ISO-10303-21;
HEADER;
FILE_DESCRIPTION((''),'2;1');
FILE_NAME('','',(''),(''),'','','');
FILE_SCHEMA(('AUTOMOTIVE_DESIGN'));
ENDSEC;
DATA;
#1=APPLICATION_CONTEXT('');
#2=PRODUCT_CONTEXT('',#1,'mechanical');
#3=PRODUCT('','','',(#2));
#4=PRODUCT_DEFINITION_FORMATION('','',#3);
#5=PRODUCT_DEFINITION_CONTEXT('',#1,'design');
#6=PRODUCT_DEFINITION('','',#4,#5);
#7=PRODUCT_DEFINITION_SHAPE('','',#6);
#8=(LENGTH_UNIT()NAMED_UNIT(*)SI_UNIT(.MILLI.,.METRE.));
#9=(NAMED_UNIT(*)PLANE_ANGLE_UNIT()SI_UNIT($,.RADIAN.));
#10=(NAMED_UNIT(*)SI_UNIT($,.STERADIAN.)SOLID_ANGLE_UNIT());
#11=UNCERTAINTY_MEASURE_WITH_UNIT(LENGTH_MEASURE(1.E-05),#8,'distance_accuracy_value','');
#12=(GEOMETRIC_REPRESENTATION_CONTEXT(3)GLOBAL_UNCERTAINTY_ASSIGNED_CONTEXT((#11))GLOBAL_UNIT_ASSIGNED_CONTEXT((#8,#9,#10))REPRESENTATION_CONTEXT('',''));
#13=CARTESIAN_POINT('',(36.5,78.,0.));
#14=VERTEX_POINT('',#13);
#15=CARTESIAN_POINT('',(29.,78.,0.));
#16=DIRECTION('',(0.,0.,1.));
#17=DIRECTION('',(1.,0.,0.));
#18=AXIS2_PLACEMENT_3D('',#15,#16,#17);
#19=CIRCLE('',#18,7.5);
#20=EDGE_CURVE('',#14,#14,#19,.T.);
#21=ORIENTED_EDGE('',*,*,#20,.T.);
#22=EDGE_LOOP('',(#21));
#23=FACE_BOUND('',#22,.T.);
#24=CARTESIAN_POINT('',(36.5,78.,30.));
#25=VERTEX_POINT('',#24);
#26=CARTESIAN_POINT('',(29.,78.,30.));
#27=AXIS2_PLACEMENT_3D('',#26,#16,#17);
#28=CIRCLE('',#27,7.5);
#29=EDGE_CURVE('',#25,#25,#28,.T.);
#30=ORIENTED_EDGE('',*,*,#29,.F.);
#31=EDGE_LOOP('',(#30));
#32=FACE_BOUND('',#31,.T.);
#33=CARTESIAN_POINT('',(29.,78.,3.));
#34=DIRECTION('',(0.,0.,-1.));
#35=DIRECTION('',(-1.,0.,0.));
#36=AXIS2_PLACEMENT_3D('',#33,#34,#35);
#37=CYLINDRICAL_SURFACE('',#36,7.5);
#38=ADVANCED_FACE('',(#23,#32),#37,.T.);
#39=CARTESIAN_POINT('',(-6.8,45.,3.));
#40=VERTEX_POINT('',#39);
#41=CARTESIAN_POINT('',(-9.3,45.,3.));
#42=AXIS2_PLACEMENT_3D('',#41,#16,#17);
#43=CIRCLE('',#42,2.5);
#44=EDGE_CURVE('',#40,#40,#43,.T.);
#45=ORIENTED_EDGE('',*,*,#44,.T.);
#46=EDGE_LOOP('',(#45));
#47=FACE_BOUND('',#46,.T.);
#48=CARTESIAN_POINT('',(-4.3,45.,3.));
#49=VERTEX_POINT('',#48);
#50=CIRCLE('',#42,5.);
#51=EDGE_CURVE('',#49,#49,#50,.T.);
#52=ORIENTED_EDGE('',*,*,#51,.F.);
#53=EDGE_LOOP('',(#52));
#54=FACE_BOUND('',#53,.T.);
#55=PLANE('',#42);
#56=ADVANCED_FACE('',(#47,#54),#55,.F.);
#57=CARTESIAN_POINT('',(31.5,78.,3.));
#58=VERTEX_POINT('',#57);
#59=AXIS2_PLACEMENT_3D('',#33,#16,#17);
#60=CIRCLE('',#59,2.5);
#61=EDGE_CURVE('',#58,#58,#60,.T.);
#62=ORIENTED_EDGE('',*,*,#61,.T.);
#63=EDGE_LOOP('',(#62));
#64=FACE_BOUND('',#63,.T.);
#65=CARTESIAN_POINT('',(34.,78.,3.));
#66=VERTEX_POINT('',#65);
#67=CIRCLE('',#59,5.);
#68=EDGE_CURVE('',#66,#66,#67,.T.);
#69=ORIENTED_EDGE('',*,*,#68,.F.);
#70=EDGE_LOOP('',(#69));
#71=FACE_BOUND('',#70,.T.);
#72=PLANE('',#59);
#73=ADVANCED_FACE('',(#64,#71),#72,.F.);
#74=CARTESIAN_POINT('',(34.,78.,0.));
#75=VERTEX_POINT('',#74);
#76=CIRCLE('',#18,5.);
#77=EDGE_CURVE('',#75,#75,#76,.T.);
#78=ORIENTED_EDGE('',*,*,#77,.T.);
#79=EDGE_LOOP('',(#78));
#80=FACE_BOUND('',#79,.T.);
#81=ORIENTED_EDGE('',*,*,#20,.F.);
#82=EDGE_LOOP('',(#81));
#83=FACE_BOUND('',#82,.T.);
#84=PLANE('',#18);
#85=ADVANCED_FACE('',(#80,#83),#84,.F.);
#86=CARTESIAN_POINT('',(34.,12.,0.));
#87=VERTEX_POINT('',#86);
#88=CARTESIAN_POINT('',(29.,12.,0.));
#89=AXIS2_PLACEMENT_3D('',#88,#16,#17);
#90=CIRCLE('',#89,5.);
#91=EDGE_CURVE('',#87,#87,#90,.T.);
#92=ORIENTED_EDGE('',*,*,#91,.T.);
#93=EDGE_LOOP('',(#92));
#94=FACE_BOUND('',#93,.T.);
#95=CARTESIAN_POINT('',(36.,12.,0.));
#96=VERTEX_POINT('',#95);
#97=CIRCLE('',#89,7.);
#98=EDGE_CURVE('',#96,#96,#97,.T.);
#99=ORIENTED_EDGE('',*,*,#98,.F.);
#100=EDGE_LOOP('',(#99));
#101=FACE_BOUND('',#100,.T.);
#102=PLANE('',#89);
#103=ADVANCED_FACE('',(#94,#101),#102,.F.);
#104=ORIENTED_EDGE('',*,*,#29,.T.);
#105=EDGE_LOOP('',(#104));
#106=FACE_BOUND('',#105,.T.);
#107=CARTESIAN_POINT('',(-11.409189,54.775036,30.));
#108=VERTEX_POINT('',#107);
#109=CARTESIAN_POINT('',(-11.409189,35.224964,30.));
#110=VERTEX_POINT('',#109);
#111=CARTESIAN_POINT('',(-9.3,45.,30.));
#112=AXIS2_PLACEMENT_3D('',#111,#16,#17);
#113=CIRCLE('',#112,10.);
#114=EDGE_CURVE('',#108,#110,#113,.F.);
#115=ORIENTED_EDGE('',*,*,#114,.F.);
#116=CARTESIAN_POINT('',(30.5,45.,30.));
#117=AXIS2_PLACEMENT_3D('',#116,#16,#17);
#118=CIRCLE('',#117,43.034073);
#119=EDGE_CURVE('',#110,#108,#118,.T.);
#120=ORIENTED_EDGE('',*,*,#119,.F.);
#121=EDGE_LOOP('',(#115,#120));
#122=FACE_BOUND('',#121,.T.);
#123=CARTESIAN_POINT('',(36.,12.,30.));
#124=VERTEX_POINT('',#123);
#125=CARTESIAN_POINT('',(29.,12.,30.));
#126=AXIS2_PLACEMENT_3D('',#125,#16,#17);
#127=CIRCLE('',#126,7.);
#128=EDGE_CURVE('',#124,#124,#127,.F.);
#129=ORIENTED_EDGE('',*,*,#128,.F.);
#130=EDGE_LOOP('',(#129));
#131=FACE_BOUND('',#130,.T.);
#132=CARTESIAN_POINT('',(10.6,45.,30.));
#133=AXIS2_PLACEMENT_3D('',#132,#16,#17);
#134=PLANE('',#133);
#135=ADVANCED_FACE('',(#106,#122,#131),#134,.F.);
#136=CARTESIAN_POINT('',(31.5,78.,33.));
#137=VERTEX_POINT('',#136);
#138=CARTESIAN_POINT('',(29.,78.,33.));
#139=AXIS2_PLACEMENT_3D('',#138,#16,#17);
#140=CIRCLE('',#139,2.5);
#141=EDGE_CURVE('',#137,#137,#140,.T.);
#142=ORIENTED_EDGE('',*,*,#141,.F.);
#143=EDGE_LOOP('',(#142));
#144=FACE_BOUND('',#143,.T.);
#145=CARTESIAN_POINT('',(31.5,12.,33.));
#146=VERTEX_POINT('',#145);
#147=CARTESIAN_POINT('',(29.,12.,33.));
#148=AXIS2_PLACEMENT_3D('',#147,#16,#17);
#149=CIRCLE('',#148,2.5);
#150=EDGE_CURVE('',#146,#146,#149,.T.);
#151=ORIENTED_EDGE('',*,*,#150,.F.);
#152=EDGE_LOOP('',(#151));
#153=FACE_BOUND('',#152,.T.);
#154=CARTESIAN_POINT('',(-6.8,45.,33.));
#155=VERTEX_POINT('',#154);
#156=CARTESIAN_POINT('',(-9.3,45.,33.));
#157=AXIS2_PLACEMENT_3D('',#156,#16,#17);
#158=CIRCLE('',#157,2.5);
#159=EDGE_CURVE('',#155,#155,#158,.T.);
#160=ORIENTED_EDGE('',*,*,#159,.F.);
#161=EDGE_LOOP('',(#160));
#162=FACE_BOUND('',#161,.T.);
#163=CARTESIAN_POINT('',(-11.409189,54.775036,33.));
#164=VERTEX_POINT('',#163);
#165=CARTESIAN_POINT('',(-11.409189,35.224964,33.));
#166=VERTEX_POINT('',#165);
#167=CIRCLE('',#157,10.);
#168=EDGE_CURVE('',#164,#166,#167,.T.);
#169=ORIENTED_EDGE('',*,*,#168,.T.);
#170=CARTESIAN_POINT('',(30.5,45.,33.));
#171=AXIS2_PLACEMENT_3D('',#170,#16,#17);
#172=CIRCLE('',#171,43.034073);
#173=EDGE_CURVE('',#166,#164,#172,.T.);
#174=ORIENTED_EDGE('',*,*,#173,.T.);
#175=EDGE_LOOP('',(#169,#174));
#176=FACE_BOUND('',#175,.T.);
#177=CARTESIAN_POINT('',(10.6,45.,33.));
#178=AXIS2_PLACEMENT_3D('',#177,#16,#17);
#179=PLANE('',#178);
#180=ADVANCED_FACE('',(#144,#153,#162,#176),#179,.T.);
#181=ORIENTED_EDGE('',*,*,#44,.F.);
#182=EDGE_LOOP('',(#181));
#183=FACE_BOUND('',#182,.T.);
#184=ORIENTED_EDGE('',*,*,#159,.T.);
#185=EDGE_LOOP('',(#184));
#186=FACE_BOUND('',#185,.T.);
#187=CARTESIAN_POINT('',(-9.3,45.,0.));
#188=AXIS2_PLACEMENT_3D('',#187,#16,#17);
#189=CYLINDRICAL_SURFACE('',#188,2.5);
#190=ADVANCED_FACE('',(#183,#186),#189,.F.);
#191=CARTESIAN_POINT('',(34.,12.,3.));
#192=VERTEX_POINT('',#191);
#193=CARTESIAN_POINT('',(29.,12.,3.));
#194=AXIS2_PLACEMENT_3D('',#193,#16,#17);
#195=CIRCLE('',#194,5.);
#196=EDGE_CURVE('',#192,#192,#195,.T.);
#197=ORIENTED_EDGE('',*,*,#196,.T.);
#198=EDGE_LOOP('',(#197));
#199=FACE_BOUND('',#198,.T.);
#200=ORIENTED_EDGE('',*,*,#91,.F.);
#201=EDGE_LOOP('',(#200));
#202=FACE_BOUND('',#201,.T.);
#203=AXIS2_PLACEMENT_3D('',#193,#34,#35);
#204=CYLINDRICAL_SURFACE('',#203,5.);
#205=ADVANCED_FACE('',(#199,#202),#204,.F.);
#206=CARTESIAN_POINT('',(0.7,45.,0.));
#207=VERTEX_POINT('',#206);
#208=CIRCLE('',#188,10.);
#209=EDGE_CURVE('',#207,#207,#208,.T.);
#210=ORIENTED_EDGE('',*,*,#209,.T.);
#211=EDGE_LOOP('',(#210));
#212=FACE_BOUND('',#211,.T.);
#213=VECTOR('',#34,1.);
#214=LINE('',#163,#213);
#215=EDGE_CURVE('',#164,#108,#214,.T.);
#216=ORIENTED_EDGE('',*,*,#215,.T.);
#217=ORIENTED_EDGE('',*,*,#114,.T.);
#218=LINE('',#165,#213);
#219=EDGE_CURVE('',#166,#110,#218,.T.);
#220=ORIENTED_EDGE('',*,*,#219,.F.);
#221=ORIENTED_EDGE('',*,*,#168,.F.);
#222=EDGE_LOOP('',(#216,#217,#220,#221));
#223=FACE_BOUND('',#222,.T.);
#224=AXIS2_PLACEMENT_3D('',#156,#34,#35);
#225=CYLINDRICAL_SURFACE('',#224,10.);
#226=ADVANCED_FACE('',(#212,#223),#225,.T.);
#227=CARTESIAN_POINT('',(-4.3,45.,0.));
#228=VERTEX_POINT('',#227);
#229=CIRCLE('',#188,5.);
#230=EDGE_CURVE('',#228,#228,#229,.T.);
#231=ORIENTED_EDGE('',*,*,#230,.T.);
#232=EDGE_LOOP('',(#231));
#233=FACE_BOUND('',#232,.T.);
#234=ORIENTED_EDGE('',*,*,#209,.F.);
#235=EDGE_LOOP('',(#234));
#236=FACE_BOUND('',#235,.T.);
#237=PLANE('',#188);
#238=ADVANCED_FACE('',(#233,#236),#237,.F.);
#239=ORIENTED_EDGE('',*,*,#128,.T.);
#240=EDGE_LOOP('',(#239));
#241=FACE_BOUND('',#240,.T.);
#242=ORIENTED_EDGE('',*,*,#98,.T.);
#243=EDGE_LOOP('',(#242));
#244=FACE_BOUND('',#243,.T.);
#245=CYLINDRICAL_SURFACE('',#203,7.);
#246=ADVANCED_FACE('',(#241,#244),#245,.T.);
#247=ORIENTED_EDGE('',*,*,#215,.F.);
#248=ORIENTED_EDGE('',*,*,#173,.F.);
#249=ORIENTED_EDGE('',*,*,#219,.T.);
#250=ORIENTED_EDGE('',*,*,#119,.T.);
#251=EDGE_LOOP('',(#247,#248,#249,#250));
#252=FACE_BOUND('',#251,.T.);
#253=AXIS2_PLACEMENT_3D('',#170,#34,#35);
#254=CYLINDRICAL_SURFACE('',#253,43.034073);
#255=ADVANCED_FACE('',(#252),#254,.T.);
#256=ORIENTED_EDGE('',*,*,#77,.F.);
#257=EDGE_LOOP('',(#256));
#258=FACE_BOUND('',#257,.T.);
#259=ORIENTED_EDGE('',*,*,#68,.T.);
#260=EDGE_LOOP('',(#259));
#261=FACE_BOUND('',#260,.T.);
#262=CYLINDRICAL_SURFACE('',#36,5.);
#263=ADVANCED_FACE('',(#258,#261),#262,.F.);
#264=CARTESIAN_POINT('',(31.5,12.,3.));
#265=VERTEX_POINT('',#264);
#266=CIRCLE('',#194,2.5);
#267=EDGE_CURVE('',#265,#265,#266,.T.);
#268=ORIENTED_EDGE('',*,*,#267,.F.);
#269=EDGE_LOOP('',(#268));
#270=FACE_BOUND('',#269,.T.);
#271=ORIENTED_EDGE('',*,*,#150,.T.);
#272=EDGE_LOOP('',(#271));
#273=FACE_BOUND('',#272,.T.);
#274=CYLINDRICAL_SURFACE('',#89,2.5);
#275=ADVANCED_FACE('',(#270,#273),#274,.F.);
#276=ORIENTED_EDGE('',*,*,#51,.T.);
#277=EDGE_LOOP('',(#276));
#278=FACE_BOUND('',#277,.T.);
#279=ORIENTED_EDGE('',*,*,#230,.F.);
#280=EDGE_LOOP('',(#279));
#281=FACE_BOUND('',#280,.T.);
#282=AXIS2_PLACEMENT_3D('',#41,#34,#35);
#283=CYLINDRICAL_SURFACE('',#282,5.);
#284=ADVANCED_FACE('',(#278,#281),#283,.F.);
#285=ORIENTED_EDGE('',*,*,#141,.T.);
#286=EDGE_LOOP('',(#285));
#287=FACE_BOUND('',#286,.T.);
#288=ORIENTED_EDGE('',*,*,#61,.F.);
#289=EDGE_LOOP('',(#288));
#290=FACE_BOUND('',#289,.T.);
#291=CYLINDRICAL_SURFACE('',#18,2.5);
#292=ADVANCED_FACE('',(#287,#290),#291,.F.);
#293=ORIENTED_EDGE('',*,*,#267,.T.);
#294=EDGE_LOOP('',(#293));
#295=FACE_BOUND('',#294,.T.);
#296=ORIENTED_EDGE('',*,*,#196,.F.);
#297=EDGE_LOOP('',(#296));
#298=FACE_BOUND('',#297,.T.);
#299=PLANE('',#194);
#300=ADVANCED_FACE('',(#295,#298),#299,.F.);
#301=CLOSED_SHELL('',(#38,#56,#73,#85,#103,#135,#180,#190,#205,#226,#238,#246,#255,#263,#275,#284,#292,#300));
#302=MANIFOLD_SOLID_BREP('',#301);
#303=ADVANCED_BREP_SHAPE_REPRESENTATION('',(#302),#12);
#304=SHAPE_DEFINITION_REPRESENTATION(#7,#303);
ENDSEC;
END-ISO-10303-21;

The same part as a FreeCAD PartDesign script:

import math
import FreeCAD as App
import Part
import Sketcher
from FreeCAD import Vector

doc = App.newDocument("Part")
body = doc.addObject("PartDesign::Body", "Body")

sketch1 = body.newObject("Sketcher::SketchObject", "Sketch")
sketch1.AttachmentSupport = (doc.getObject("XY_Plane"), [""])
sketch1.MapMode = "FlatFace"
sketch1.addGeometry(Part.Circle(Vector(29, 78, 0), Vector(0, 0, 1), 7.5), False)
sketch1.addGeometry(Part.Circle(Vector(29, 78, 0), Vector(0, 0, 1), 5), False)
sketch1.addConstraint(Sketcher.Constraint("Coincident", 1, 3, 0, 3))
sketch1.addConstraint(Sketcher.Constraint("Diameter", 0, 15.0))
sketch1.addConstraint(Sketcher.Constraint("Diameter", 1, 10.0))
sketch1.addConstraint(Sketcher.Constraint("DistanceX", -1, 1, 0, 3, 29.0))
sketch1.addConstraint(Sketcher.Constraint("DistanceY", -1, 1, 0, 3, 78.0))
pad1 = body.newObject("PartDesign::Pad", "Pad")
pad1.Profile = sketch1
pad1.Length = 3
body2 = doc.addObject("PartDesign::Body", "Body001")

sketch2 = body2.newObject("Sketcher::SketchObject", "Sketch001")
sketch2.AttachmentSupport = (doc.getObject("XY_Plane001"), [""])
sketch2.MapMode = "FlatFace"
sketch2.addGeometry(Part.Circle(Vector(-9.3, 45, 0), Vector(0, 0, 1), 10), False)
sketch2.addGeometry(Part.Circle(Vector(-9.3, 45, 0), Vector(0, 0, 1), 5), False)
sketch2.addConstraint(Sketcher.Constraint("Coincident", 1, 3, 0, 3))
sketch2.addConstraint(Sketcher.Constraint("Diameter", 0, 20.0))
sketch2.addConstraint(Sketcher.Constraint("Diameter", 1, 10.0))
sketch2.addConstraint(Sketcher.Constraint("DistanceY", -1, 1, 0, 3, 45.0))
sketch2.addConstraint(Sketcher.Constraint("DistanceX", 0, 3, -1, 1, 9.3))
pad2 = body2.newObject("PartDesign::Pad", "Pad001")
pad2.Profile = sketch2
pad2.Length = 3
body3 = doc.addObject("PartDesign::Body", "Body002")

sketch3 = body3.newObject("Sketcher::SketchObject", "Sketch002")
sketch3.AttachmentSupport = (doc.getObject("XY_Plane002"), [""])
sketch3.MapMode = "FlatFace"
sketch3.addGeometry(Part.Circle(Vector(29, 12, 0), Vector(0, 0, 1), 7), False)
sketch3.addGeometry(Part.Circle(Vector(29, 12, 0), Vector(0, 0, 1), 5), False)
sketch3.addConstraint(Sketcher.Constraint("Coincident", 1, 3, 0, 3))
sketch3.addConstraint(Sketcher.Constraint("Diameter", 0, 14.0))
sketch3.addConstraint(Sketcher.Constraint("Diameter", 1, 10.0))
sketch3.addConstraint(Sketcher.Constraint("DistanceX", -1, 1, 0, 3, 29.0))
sketch3.addConstraint(Sketcher.Constraint("DistanceY", -1, 1, 0, 3, 12.0))
pad3 = body3.newObject("PartDesign::Pad", "Pad002")
pad3.Profile = sketch3
pad3.Length = 3
body.AllowCompound = True
doc.recompute()

boolean = body.newObject("PartDesign::Boolean", "Boolean")
boolean.Type = "Fuse"
boolean.addObjects([body2])
doc.recompute()

boolean2 = body.newObject("PartDesign::Boolean", "Boolean001")
boolean2.Type = "Fuse"
boolean2.addObjects([body3])

sketch4 = body.newObject("Sketcher::SketchObject", "Sketch003")
sketch4.AttachmentSupport = (doc.getObject("XY_Plane"), [""])
sketch4.MapMode = "FlatFace"
sketch4.AttachmentOffset = App.Placement(Vector(0, 0, 3), App.Rotation())
sketch4.addGeometry(Part.Circle(Vector(29, 12, 0), Vector(0, 0, 1), 7), False)
sketch4.addGeometry(Part.Circle(Vector(29, 78, 0), Vector(0, 0, 1), 7.5), False)
sketch4.addGeometry(Part.Circle(Vector(-9.3, 45, 0), Vector(0, 0, 1), 10), False)
sketch4.addConstraint(Sketcher.Constraint("Vertical", 0, 3, 1, 3))
sketch4.addConstraint(Sketcher.Constraint("Diameter", 0, 14.0))
sketch4.addConstraint(Sketcher.Constraint("Diameter", 1, 15.0))
sketch4.addConstraint(Sketcher.Constraint("Diameter", 2, 20.0))
sketch4.addConstraint(Sketcher.Constraint("DistanceX", -1, 1, 0, 3, 29.0))
sketch4.addConstraint(Sketcher.Constraint("DistanceY", -1, 1, 0, 3, 12.0))
sketch4.addConstraint(Sketcher.Constraint("DistanceY", -1, 1, 1, 3, 78.0))
sketch4.addConstraint(Sketcher.Constraint("DistanceY", -1, 1, 2, 3, 45.0))
sketch4.addConstraint(Sketcher.Constraint("DistanceX", 2, 3, -1, 1, 9.3))
pad4 = body.newObject("PartDesign::Pad", "Pad003")
pad4.Profile = sketch4
pad4.Length = 27

sketch5 = body.newObject("Sketcher::SketchObject", "Sketch004")
sketch5.AttachmentSupport = (doc.getObject("XY_Plane"), [""])
sketch5.MapMode = "FlatFace"
sketch5.AttachmentOffset = App.Placement(Vector(0, 0, 30), App.Rotation())
sketch5.addGeometry(Part.ArcOfCircle(Part.Circle(Vector(30.5, 45, 0), Vector(0, 0, 1), 43.034073), math.radians(-166.870873), math.radians(166.870873)), False)
sketch5.addGeometry(Part.ArcOfCircle(Part.Circle(Vector(-9.3, 45, 0), Vector(0, 0, 1), 10), math.radians(102.176209), math.radians(257.823791)), False)
sketch5.addConstraint(Sketcher.Constraint("Coincident", 0, 1, 1, 2))
sketch5.addConstraint(Sketcher.Constraint("Coincident", 1, 1, 0, 2))
sketch5.addConstraint(Sketcher.Constraint("Horizontal", 0, 3, 1, 3))
sketch5.addConstraint(Sketcher.Constraint("Radius", 1, 10.0))
sketch5.addConstraint(Sketcher.Constraint("DistanceY", -1, 1, 0, 3, 45.0))
sketch5.addConstraint(Sketcher.Constraint("DistanceX", -1, 1, 0, 3, 30.5))
sketch5.addConstraint(Sketcher.Constraint("DistanceX", 1, 3, -1, 1, 9.3))
sketch5.addConstraint(Sketcher.Constraint("Radius", 0, 43.034073))
pad5 = body.newObject("PartDesign::Pad", "Pad004")
pad5.Profile = sketch5
pad5.Length = 3

sketch6 = body.newObject("Sketcher::SketchObject", "Sketch005")
sketch6.AttachmentSupport = (doc.getObject("XY_Plane"), [""])
sketch6.MapMode = "FlatFace"
sketch6.AttachmentOffset = App.Placement(Vector(0, 0, 33), App.Rotation())
sketch6.addGeometry(Part.Circle(Vector(-9.3, 45, 0), Vector(0, 0, 1), 2.5), False)
sketch6.addGeometry(Part.Circle(Vector(29, 12, 0), Vector(0, 0, 1), 2.5), False)
sketch6.addGeometry(Part.Circle(Vector(29, 78, 0), Vector(0, 0, 1), 2.5), False)
sketch6.addConstraint(Sketcher.Constraint("Equal", 0, 1))
sketch6.addConstraint(Sketcher.Constraint("Equal", 1, 2))
sketch6.addConstraint(Sketcher.Constraint("Vertical", 1, 3, 2, 3))
sketch6.addConstraint(Sketcher.Constraint("Diameter", 0, 5.0))
sketch6.addConstraint(Sketcher.Constraint("DistanceY", -1, 1, 0, 3, 45.0))
sketch6.addConstraint(Sketcher.Constraint("DistanceX", -1, 1, 1, 3, 29.0))
sketch6.addConstraint(Sketcher.Constraint("DistanceY", -1, 1, 1, 3, 12.0))
sketch6.addConstraint(Sketcher.Constraint("DistanceY", -1, 1, 2, 3, 78.0))
sketch6.addConstraint(Sketcher.Constraint("DistanceX", 0, 3, -1, 1, 9.3))
pocket1 = body.newObject("PartDesign::Pocket", "Pocket")
pocket1.Profile = sketch6
pocket1.Type = "ThroughAll"

doc.recompute()
